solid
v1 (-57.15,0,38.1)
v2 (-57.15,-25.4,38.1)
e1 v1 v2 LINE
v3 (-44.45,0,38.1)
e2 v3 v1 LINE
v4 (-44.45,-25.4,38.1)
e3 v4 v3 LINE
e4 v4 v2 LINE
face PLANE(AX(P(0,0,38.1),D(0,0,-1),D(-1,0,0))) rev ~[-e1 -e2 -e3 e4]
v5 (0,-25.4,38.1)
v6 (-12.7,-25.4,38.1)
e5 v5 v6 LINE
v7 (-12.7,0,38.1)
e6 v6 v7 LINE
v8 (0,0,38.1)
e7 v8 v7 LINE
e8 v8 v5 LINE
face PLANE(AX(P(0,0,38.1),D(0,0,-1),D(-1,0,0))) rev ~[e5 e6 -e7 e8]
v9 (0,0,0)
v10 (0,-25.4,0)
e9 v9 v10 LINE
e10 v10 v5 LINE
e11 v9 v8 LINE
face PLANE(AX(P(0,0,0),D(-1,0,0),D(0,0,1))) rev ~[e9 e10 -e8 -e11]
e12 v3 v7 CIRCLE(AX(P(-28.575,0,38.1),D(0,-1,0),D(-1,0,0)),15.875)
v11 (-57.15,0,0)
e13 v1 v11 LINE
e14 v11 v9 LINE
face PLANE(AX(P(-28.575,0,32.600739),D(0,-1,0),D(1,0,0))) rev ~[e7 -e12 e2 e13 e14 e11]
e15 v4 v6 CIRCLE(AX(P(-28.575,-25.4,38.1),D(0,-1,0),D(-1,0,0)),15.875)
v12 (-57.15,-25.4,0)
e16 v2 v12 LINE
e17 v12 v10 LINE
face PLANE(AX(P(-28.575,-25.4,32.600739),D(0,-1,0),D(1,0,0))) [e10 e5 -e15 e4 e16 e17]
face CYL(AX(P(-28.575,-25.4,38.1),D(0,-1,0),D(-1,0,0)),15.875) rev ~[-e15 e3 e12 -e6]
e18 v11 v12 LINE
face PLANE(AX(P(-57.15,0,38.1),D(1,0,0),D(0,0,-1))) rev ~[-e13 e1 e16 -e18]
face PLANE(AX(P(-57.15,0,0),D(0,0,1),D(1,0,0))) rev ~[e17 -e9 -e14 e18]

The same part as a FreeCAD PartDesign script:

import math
import FreeCAD as App
import Part
import Sketcher
from FreeCAD import Vector
Q = App.Units.Quantity

doc = App.newDocument("Part")
body = doc.addObject("PartDesign::Body", "Body")

sketch1 = body.newObject("Sketcher::SketchObject", "Sketch")
sketch1.AttachmentSupport = (doc.getObject("XZ_Plane"), [""])
sketch1.MapMode = "FlatFace"
sketch1.addGeometry([
    Part.LineSegment(Vector(-57, 38, 0), Vector(-57, 0, 0)),
    Part.LineSegment(Vector(-57, 0, 0), Vector(0, 0, 0)),
    Part.LineSegment(Vector(0, 0, 0), Vector(0, 38, 0)),
    Part.LineSegment(Vector(0, 38, 0), Vector(-57, 38, 0)),
], False)
sketch1.addConstraint([
    Sketcher.Constraint("Coincident", 0, 2, 1, 1),
    Sketcher.Constraint("Coincident", 1, 2, 2, 1),
    Sketcher.Constraint("Coincident", 2, 2, 3, 1),
    Sketcher.Constraint("Coincident", 3, 2, 0, 1),
    Sketcher.Constraint("Vertical", 0),
    Sketcher.Constraint("Horizontal", 1),
    Sketcher.Constraint("Vertical", 2),
    Sketcher.Constraint("Horizontal", 3),
    Sketcher.Constraint("Coincident", 1, 2, -1, 1),
    Sketcher.Constraint("DistanceY", 0, 2, 0, 1, Q("1.5 in")),
    Sketcher.Constraint("DistanceX", 1, 1, 1, 2, Q("2.25 in")),
])
pad1 = body.newObject("PartDesign::Pad", "Pad")
pad1.Profile = sketch1
pad1.Length = Q("1 in")

sketch2 = body.newObject("Sketcher::SketchObject", "Sketch001")
sketch2.AttachmentSupport = (doc.getObject("XZ_Plane"), [""])
sketch2.MapMode = "FlatFace"
sketch2.AttachmentOffset = App.Placement(Vector(0, 0, 1 * 25.4), App.Rotation())
sketch2.addGeometry([
    Part.LineSegment(Vector(-13, 38, 0), Vector(-44, 38, 0)),
    Part.ArcOfCircle(Part.Circle(Vector(-29, 38, 0), Vector(0, 0, 1), 16), math.radians(180), math.radians(360)),
], False)
sketch2.addConstraint([
    Sketcher.Constraint("Coincident", 0, 1, 1, 2),
    Sketcher.Constraint("Coincident", 1, 1, 0, 2),
    Sketcher.Constraint("Horizontal", 0),
    Sketcher.Constraint("Horizontal", 1, 3, 0, 1),
    Sketcher.Constraint("Radius", 1, Q("0.625 in")),
    Sketcher.Constraint("DistanceY", -1, 1, 1, 3, Q("1.5 in")),
    Sketcher.Constraint("DistanceX", 0, 1, -1, 1, Q("0.5 in")),
])
pocket1 = body.newObject("PartDesign::Pocket", "Pocket")
pocket1.Profile = sketch2
pocket1.Type = "ThroughAll"

doc.recompute()
